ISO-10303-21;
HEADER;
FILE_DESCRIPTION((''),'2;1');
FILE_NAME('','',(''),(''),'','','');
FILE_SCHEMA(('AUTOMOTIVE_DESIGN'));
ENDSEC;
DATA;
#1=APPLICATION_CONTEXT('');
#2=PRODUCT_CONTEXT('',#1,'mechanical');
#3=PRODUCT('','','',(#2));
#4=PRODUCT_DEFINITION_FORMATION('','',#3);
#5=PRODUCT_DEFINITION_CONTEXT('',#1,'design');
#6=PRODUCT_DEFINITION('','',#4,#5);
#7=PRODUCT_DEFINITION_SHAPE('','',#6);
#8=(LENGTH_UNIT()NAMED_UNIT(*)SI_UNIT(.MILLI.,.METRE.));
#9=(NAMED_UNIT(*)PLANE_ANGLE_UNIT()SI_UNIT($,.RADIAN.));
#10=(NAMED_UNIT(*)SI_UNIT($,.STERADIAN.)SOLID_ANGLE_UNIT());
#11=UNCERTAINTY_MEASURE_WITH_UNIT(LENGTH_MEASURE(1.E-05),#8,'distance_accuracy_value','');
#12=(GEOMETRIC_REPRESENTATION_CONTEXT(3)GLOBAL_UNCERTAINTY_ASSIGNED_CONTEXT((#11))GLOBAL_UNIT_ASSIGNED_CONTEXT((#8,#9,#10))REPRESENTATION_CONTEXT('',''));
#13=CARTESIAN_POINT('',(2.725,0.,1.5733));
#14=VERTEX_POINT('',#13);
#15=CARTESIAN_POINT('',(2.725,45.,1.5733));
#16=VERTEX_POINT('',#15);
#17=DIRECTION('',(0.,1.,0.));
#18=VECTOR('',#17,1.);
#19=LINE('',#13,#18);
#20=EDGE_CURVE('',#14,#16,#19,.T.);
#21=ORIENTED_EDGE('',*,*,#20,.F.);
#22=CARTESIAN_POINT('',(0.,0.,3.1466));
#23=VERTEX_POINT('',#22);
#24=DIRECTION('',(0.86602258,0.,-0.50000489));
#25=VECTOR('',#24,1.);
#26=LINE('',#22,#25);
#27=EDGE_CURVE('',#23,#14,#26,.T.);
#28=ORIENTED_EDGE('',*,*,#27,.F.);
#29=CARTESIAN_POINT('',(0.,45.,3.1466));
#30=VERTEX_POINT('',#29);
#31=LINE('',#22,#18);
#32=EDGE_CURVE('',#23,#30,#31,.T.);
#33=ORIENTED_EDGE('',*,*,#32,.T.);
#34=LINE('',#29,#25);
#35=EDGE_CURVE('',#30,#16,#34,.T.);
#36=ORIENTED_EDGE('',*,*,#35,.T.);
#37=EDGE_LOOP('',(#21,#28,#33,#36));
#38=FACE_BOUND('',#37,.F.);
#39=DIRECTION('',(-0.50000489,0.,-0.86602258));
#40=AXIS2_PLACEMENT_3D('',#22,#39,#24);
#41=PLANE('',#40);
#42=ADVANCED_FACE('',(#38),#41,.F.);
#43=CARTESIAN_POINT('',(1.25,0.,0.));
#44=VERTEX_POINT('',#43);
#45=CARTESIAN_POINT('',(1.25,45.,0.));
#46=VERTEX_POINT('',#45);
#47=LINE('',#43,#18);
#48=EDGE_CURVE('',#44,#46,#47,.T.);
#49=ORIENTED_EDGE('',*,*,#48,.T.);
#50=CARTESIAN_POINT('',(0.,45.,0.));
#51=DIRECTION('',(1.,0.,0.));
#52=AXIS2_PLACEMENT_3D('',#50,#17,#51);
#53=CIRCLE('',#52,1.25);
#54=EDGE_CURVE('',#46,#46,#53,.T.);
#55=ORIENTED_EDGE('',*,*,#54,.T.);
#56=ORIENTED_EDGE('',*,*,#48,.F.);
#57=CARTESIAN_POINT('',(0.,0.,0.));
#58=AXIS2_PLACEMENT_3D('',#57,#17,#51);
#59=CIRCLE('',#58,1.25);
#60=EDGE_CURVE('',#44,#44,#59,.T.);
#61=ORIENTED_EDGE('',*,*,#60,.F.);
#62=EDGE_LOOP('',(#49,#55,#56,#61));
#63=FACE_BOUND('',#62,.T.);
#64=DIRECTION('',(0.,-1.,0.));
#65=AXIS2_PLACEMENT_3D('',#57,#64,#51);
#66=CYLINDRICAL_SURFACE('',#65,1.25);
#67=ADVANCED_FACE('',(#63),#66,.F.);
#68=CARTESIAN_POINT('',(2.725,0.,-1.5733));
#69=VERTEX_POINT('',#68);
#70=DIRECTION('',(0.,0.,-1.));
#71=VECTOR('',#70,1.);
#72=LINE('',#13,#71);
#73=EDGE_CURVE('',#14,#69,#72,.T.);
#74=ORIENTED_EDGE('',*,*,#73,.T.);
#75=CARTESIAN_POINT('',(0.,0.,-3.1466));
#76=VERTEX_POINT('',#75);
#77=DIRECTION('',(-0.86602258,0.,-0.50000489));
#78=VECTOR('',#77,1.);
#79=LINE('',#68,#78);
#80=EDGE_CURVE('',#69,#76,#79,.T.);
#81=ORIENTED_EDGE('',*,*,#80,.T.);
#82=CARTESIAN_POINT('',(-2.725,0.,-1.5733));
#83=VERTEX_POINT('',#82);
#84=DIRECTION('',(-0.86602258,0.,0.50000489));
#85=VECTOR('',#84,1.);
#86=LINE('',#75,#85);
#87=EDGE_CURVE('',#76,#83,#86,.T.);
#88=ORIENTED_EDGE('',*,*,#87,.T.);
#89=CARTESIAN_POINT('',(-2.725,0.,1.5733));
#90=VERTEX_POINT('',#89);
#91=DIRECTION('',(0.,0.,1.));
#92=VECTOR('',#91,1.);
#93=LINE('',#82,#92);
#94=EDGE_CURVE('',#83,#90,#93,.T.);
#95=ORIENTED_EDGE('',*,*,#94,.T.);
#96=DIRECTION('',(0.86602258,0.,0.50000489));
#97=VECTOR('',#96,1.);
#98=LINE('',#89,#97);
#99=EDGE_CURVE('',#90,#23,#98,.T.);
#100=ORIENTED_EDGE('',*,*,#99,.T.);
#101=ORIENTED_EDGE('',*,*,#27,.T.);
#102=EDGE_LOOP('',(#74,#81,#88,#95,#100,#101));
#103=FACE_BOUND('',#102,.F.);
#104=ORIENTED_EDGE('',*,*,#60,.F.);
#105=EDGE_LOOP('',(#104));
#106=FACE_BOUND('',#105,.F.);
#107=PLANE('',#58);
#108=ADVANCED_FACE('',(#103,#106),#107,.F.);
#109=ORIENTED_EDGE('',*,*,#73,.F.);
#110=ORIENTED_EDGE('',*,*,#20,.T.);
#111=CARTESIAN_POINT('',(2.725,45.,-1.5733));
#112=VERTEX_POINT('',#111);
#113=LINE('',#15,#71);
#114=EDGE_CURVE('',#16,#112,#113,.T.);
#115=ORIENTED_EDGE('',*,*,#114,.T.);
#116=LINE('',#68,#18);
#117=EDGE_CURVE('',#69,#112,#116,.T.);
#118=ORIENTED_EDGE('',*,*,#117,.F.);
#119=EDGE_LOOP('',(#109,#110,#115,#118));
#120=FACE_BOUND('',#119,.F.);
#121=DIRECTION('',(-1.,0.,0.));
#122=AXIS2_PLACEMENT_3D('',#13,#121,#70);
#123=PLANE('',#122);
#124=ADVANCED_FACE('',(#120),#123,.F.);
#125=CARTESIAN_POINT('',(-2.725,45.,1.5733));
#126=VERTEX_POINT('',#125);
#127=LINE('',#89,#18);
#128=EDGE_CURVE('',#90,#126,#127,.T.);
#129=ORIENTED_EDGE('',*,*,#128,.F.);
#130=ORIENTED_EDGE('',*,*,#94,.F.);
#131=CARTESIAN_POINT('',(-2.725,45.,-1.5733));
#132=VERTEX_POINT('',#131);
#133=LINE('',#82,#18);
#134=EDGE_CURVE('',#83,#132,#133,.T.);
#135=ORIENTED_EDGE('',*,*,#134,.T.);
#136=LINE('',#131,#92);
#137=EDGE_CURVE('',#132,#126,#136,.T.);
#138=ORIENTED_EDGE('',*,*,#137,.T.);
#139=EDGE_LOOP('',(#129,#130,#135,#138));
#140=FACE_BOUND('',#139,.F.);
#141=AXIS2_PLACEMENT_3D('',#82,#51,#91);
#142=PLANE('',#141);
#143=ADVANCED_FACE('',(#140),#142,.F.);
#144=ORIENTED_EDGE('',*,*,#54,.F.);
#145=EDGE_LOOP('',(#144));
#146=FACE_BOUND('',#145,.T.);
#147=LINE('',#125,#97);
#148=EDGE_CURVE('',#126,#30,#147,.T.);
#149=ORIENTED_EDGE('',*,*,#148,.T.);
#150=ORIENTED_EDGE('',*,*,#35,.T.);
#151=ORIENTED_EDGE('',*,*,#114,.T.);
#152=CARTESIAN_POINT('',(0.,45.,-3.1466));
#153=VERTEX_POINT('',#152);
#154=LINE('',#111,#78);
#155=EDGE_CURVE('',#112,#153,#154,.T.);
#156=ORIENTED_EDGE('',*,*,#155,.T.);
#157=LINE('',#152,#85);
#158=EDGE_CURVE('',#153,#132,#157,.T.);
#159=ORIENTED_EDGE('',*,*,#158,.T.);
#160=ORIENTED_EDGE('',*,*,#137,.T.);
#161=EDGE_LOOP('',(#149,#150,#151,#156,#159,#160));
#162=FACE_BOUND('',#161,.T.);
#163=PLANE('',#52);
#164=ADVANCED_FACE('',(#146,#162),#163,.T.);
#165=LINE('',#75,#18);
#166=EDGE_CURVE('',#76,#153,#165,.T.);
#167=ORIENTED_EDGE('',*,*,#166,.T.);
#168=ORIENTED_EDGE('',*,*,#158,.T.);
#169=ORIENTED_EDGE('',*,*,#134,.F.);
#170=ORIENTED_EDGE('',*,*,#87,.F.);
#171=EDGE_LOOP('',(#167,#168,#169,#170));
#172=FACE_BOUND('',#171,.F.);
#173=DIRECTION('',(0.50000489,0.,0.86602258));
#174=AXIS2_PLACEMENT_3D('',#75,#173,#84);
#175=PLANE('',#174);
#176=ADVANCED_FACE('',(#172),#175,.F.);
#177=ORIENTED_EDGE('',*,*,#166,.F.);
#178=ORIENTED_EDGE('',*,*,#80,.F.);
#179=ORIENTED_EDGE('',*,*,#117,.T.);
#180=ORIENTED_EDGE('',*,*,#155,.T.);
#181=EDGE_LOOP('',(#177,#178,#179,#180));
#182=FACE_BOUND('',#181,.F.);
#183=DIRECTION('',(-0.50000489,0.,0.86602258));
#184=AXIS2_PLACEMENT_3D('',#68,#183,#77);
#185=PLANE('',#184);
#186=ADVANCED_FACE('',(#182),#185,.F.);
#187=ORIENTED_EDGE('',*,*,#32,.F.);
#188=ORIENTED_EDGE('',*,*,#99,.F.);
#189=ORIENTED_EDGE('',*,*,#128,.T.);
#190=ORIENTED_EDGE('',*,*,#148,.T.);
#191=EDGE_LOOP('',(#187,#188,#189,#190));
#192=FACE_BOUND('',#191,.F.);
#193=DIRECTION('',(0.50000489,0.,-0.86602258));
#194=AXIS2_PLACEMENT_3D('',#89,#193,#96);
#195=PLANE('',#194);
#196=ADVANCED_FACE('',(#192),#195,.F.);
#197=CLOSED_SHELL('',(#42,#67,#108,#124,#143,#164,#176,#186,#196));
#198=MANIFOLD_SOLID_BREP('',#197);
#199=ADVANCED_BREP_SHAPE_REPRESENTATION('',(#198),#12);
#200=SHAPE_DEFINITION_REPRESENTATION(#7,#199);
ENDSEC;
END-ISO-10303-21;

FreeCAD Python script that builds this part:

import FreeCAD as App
import Part
import Sketcher

V = App.Vector
Q = App.Units.Quantity


def add_polygon(sketch, points):
    """Adds a closed chain of lines whose ends are joined by coincident constraints."""
    first, n = sketch.GeometryCount, len(points)
    for a, b in zip(points, points[1:] + points[:1]):
        sketch.addGeometry(Part.LineSegment(App.Vector(*a, 0), App.Vector(*b, 0)), False)
    for i in range(n):
        sketch.addConstraint(Sketcher.Constraint("Coincident", first + i, 2, first + (i + 1) % n, 1))

doc = App.newDocument("Part")
body = doc.addObject("PartDesign::Body", "Body")

sketch1 = body.newObject("Sketcher::SketchObject", "Sketch")
sketch1.AttachmentSupport = (doc.getObject("XZ_Plane"), [""])
sketch1.MapMode = "FlatFace"
add_polygon(sketch1, [(2.7, 1.6), (2.7, -1.6), (0, -3.1), (-2.7, -1.6), (-2.7, 1.6), (0, 3.1)])
sketch1.addGeometry(Part.Circle(V(0, 0, 0), V(0, 0, 1), 1.2), False)
sketch1.addConstraint([
    Sketcher.Constraint("Vertical", 0),
    Sketcher.Constraint("Vertical", 3),
    Sketcher.Constraint("Coincident", 6, 3, -1, 1),
    Sketcher.Constraint("Symmetric", 0, 2, 3, 2, -1, 1),
    Sketcher.Constraint("Symmetric", 1, 2, 4, 2, -1, 1),
    Sketcher.Constraint("PointOnObject", 1, 2, -2),
    Sketcher.Constraint("Parallel", 2, 5),
    Sketcher.Constraint("Horizontal", 0, 2, 2, 2),
    Sketcher.Constraint("Diameter", 6, Q("2.5 mm")),
    Sketcher.Constraint("Angle", 1, Q("-149.9997 deg")),
    Sketcher.Constraint("DistanceX", 2, 2, 0, 2, Q("5.45 mm")),
    Sketcher.Constraint("DistanceY", 1, 2, 3, 2, Q("4.72 mm")),
])
pad1 = body.newObject("PartDesign::Pad", "Pad")
pad1.Profile = sketch1
pad1.Length = 45
pad1.Reversed = True

doc.recompute()
